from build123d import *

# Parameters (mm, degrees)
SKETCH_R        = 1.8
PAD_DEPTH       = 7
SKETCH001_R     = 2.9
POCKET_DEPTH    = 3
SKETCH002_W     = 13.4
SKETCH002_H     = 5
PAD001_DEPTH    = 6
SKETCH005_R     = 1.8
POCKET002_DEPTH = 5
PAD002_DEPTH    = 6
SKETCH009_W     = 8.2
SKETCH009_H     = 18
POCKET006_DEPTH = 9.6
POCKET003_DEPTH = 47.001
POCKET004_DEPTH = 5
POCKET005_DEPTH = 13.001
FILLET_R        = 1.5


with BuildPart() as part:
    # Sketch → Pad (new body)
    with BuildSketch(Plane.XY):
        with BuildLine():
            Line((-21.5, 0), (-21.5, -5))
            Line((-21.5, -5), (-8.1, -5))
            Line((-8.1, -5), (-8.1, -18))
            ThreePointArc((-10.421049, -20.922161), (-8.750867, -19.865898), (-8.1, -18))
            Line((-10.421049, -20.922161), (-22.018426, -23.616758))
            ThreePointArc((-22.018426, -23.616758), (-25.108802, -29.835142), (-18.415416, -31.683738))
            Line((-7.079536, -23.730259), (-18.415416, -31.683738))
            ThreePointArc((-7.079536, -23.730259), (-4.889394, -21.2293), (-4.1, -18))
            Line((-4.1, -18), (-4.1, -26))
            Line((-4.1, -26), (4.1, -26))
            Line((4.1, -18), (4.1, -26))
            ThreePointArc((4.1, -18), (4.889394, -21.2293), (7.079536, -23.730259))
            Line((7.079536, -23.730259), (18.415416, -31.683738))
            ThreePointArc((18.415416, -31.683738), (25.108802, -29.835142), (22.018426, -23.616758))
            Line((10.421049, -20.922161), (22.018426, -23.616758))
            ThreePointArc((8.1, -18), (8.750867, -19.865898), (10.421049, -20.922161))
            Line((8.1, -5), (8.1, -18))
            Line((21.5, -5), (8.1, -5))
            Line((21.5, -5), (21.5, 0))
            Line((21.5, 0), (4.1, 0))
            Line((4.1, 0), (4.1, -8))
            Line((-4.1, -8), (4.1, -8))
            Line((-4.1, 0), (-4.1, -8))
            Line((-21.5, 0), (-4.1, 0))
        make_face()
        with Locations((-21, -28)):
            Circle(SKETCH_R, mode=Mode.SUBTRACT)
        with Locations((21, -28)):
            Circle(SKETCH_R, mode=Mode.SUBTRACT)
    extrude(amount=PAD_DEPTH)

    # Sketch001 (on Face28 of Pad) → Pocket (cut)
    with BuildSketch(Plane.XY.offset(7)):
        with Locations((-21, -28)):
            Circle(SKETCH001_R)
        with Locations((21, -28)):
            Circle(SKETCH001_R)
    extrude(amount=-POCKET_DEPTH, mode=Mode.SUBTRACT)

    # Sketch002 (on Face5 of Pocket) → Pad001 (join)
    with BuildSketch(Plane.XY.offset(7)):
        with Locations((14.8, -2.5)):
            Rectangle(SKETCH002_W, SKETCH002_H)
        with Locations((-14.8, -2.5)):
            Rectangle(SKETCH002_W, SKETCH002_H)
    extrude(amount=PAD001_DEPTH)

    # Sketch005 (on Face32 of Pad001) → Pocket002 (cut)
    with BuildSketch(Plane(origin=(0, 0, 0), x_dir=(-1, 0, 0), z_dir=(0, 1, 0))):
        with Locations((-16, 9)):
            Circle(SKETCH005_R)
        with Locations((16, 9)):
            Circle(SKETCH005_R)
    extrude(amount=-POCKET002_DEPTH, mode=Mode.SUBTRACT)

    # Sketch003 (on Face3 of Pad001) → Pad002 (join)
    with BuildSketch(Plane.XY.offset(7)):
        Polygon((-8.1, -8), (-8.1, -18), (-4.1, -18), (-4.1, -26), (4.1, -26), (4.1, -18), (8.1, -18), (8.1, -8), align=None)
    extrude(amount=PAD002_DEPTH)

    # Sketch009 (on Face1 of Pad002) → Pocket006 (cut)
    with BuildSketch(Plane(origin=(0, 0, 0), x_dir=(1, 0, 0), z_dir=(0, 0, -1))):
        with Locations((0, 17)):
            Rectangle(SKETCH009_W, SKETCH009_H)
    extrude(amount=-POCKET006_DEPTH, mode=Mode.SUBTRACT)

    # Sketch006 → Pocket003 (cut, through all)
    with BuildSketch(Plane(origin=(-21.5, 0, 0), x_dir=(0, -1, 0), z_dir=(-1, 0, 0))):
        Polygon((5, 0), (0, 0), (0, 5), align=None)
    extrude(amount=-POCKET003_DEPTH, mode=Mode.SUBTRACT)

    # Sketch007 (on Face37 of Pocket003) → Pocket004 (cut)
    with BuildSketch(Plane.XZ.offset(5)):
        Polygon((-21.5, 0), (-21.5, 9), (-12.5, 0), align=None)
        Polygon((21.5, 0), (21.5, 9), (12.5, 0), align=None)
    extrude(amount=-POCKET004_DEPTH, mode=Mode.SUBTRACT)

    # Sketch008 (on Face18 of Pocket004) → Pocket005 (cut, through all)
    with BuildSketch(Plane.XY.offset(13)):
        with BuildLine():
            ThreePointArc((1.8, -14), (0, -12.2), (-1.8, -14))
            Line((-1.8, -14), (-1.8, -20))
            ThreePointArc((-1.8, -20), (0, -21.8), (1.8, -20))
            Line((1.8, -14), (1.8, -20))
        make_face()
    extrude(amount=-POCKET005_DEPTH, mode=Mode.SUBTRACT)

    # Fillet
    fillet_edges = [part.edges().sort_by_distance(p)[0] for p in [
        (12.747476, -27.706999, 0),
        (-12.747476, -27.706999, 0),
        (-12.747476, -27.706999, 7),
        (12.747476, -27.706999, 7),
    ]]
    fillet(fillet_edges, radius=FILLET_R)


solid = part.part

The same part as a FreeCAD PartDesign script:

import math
import FreeCAD as App
import Part
import Sketcher

V = App.Vector


def edges_at(feature, points):
    """Names of the edges that pass closest to the given points."""
    edges = feature.Shape.Edges
    near = lambda p: min(range(len(edges)), key=lambda i: edges[i].distToShape(Part.Vertex(*p))[0])
    return sorted({f"Edge{near(p) + 1}" for p in points})


def add_polygon(sketch, points):
    """Adds a closed chain of lines whose ends are joined by coincident constraints."""
    first, n = sketch.GeometryCount, len(points)
    for a, b in zip(points, points[1:] + points[:1]):
        sketch.addGeometry(Part.LineSegment(App.Vector(*a, 0), App.Vector(*b, 0)), False)
    for i in range(n):
        sketch.addConstraint(Sketcher.Constraint("Coincident", first + i, 2, first + (i + 1) % n, 1))

doc = App.newDocument("Part")
body = doc.addObject("PartDesign::Body", "Body")

sketch1 = body.newObject("Sketcher::SketchObject", "Sketch")
sketch1.AttachmentSupport = (doc.getObject("XY_Plane"), [""])
sketch1.MapMode = "FlatFace"
sketch1.addGeometry(Part.LineSegment(V(-21.5, 0, 0), V(-21.5, -5, 0)), False)
sketch1.addGeometry(Part.LineSegment(V(-21.5, -5, 0), V(-8.1, -5, 0)), False)
sketch1.addGeometry(Part.LineSegment(V(-8.1, -5, 0), V(-8.1, -18, 0)), False)
sketch1.addGeometry(Part.ArcOfCircle(Part.Circle(V(-11.1, -18, 0), V(0, 0, 1), 3), math.radians(-77), math.radians(0)), False)
sketch1.addGeometry(Part.LineSegment(V(-10.4, -20.9, 0), V(-22, -23.6, 0)), False)
sketch1.addGeometry(Part.ArcOfCircle(Part.Circle(V(-21, -28, 0), V(0, 0, 1), 4.5), math.radians(103), math.radians(305)), False)
sketch1.addGeometry(Part.LineSegment(V(-18.4, -31.7, 0), V(-7.1, -23.7, 0)), False)
sketch1.addGeometry(Part.ArcOfCircle(Part.Circle(V(-11.1, -18, 0), V(0, 0, 1), 7), math.radians(-55), math.radians(0)), False)
sketch1.addGeometry(Part.LineSegment(V(-4.1, -18, 0), V(-4.1, -26, 0)), False)
sketch1.addGeometry(Part.LineSegment(V(-4.1, -26, 0), V(4.1, -26, 0)), False)
sketch1.addGeometry(Part.LineSegment(V(4.1, -26, 0), V(4.1, -18, 0)), False)
sketch1.addGeometry(Part.ArcOfCircle(Part.Circle(V(11.1, -18, 0), V(0, 0, 1), 7), math.radians(180), math.radians(235)), False)
sketch1.addGeometry(Part.LineSegment(V(7.1, -23.7, 0), V(18.4, -31.7, 0)), False)
sketch1.addGeometry(Part.ArcOfCircle(Part.Circle(V(21, -28, 0), V(0, 0, 1), 4.5), math.radians(-125), math.radians(77)), False)
sketch1.addGeometry(Part.LineSegment(V(22, -23.6, 0), V(10.4, -20.9, 0)), False)
sketch1.addGeometry(Part.ArcOfCircle(Part.Circle(V(11.1, -18, 0), V(0, 0, 1), 3), math.radians(180), math.radians(257)), False)
sketch1.addGeometry(Part.LineSegment(V(8.1, -18, 0), V(8.1, -5, 0)), False)
sketch1.addGeometry(Part.LineSegment(V(8.1, -5, 0), V(21.5, -5, 0)), False)
sketch1.addGeometry(Part.LineSegment(V(21.5, -5, 0), V(21.5, 0, 0)), False)
sketch1.addGeometry(Part.LineSegment(V(21.5, 0, 0), V(4.1, 0, 0)), False)
sketch1.addGeometry(Part.LineSegment(V(4.1, 0, 0), V(4.1, -8, 0)), False)
sketch1.addGeometry(Part.LineSegment(V(4.1, -8, 0), V(-4.1, -8, 0)), False)
sketch1.addGeometry(Part.LineSegment(V(-4.1, -8, 0), V(-4.1, 0, 0)), False)
sketch1.addGeometry(Part.LineSegment(V(-4.1, 0, 0), V(-21.5, 0, 0)), False)
sketch1.addGeometry(Part.Circle(V(-21, -28, 0), V(0, 0, 1), 1.8), False)
sketch1.addGeometry(Part.Circle(V(21, -28, 0), V(0, 0, 1), 1.8), False)
sketch1.addConstraint(Sketcher.Constraint("Coincident", 0, 2, 1, 1))
sketch1.addConstraint(Sketcher.Constraint("Coincident", 1, 2, 2, 1))
sketch1.addConstraint(Sketcher.Constraint("Tangent", 2, 2, 3, 2))
sketch1.addConstraint(Sketcher.Constraint("Tangent", 3, 1, 4, 1))
sketch1.addConstraint(Sketcher.Constraint("Tangent", 4, 2, 5, 1))
sketch1.addConstraint(Sketcher.Constraint("Tangent", 5, 2, 6, 1))
sketch1.addConstraint(Sketcher.Constraint("Tangent", 6, 2, 7, 1))
sketch1.addConstraint(Sketcher.Constraint("Tangent", 7, 2, 8, 1))
sketch1.addConstraint(Sketcher.Constraint("Coincident", 8, 2, 9, 1))
sketch1.addConstraint(Sketcher.Constraint("Coincident", 9, 2, 10, 1))
sketch1.addConstraint(Sketcher.Constraint("Tangent", 10, 2, 11, 1))
sketch1.addConstraint(Sketcher.Constraint("Tangent", 11, 2, 12, 1))
sketch1.addConstraint(Sketcher.Constraint("Tangent", 12, 2, 13, 1))
sketch1.addConstraint(Sketcher.Constraint("Tangent", 13, 2, 14, 1))
sketch1.addConstraint(Sketcher.Constraint("Tangent", 14, 2, 15, 2))
sketch1.addConstraint(Sketcher.Constraint("Tangent", 15, 1, 16, 1))
sketch1.addConstraint(Sketcher.Constraint("Coincident", 16, 2, 17, 1))
sketch1.addConstraint(Sketcher.Constraint("Coincident", 17, 2, 18, 1))
sketch1.addConstraint(Sketcher.Constraint("Coincident", 18, 2, 19, 1))
sketch1.addConstraint(Sketcher.Constraint("Coincident", 19, 2, 20, 1))
sketch1.addConstraint(Sketcher.Constraint("Coincident", 20, 2, 21, 1))
sketch1.addConstraint(Sketcher.Constraint("Coincident", 21, 2, 22, 1))
sketch1.addConstraint(Sketcher.Constraint("Coincident", 22, 2, 23, 1))
sketch1.addConstraint(Sketcher.Constraint("Coincident", 23, 2, 0, 1))
sketch1.addConstraint(Sketcher.Constraint("Vertical", 0))
sketch1.addConstraint(Sketcher.Constraint("Horizontal", 1))
sketch1.addConstraint(Sketcher.Constraint("Vertical", 2))
sketch1.addConstraint(Sketcher.Constraint("Vertical", 8))
sketch1.addConstraint(Sketcher.Constraint("Horizontal", 9))
sketch1.addConstraint(Sketcher.Constraint("Vertical", 10))
sketch1.addConstraint(Sketcher.Constraint("Vertical", 16))
sketch1.addConstraint(Sketcher.Constraint("Horizontal", 17))
sketch1.addConstraint(Sketcher.Constraint("Vertical", 18))
sketch1.addConstraint(Sketcher.Constraint("Horizontal", 19))
sketch1.addConstraint(Sketcher.Constraint("Vertical", 20))
sketch1.addConstraint(Sketcher.Constraint("Horizontal", 21))
sketch1.addConstraint(Sketcher.Constraint("Vertical", 22))
sketch1.addConstraint(Sketcher.Constraint("Horizontal", 23))
sketch1.addConstraint(Sketcher.Constraint("Coincident", 7, 3, 3, 3))
sketch1.addConstraint(Sketcher.Constraint("Coincident", 15, 3, 11, 3))
sketch1.addConstraint(Sketcher.Constraint("Coincident", 24, 3, 5, 3))
sketch1.addConstraint(Sketcher.Constraint("Coincident", 25, 3, 13, 3))
sketch1.addConstraint(Sketcher.Constraint("Equal", 7, 11))
sketch1.addConstraint(Sketcher.Constraint("Equal", 5, 13))
sketch1.addConstraint(Sketcher.Constraint("Equal", 3, 15))
sketch1.addConstraint(Sketcher.Constraint("Equal", 24, 25))
sketch1.addConstraint(Sketcher.Constraint("Symmetric", 19, 2, 22, 2, -1, 1))
sketch1.addConstraint(Sketcher.Constraint("Symmetric", 3, 3, 11, 3, -2))
sketch1.addConstraint(Sketcher.Constraint("Symmetric", 5, 3, 13, 3, -2))
sketch1.addConstraint(Sketcher.Constraint("Symmetric", 0, 2, 17, 2, -2))
sketch1.addConstraint(Sketcher.Constraint("PointOnObject", 18, 2, -1))
sketch1.addConstraint(Sketcher.Constraint("Vertical", 10, 2, 19, 2))
sketch1.addConstraint(Sketcher.Constraint("Equal", 10, 20))
sketch1.addConstraint(Sketcher.Constraint("Radius", 3, 2.999999))
sketch1.addConstraint(Sketcher.Constraint("Diameter", 24, 3.6))
sketch1.addConstraint(Sketcher.Constraint("Radius", 5, 4.5))
sketch1.addConstraint(Sketcher.Constraint("DistanceY", 0, 2, 0, 1, 5.0))
sketch1.addConstraint(Sketcher.Constraint("DistanceY", 2, 2, 2, 1, 13.0))
sketch1.addConstraint(Sketcher.Constraint("DistanceY", 8, 2, 8, 1, 8.0))
sketch1.addConstraint(Sketcher.Constraint("DistanceX", 1, 1, 1, 2, 13.4))
sketch1.addConstraint(Sketcher.Constraint("DistanceX", 9, 1, 9, 2, 8.2))
sketch1.addConstraint(Sketcher.Constraint("DistanceX", 19, 2, 19, 1, 17.4))
sketch1.addConstraint(Sketcher.Constraint("DistanceX", 5, 3, -1, 1, 21.0))
sketch1.addConstraint(Sketcher.Constraint("DistanceY", 5, 3, -1, 1, 28.0))
pad1 = body.newObject("PartDesign::Pad", "Pad")
pad1.Profile = sketch1
pad1.Length = 7

sketch2 = body.newObject("Sketcher::SketchObject", "Sketch001")
sketch2.AttachmentSupport = (doc.getObject("XY_Plane"), [""])
sketch2.MapMode = "FlatFace"
sketch2.AttachmentOffset = App.Placement(V(0, 0, 7), App.Rotation())
sketch2.addGeometry(Part.Circle(V(-21, -28, 0), V(0, 0, 1), 2.9), False)
sketch2.addGeometry(Part.Circle(V(21, -28, 0), V(0, 0, 1), 2.9), False)
sketch2.addConstraint(Sketcher.Constraint("Equal", 0, 1))
sketch2.addConstraint(Sketcher.Constraint("Symmetric", 0, 3, 1, 3, -2))
sketch2.addConstraint(Sketcher.Constraint("Diameter", 0, 5.8))
sketch2.addConstraint(Sketcher.Constraint("DistanceX", 0, 3, -1, 1, 21.0))
sketch2.addConstraint(Sketcher.Constraint("DistanceY", 0, 3, -1, 1, 28.0))
pocket1 = body.newObject("PartDesign::Pocket", "Pocket")
pocket1.Profile = sketch2
pocket1.Length = 3

sketch3 = body.newObject("Sketcher::SketchObject", "Sketch002")
sketch3.AttachmentSupport = (doc.getObject("XY_Plane"), [""])
sketch3.MapMode = "FlatFace"
sketch3.AttachmentOffset = App.Placement(V(0, 0, 7), App.Rotation())
add_polygon(sketch3, [(8, 0), (8, -5), (22, -5), (22, 0)])
add_polygon(sketch3, [(-22, 0), (-22, -5), (-8, -5), (-8, 0)])
sketch3.addConstraint(Sketcher.Constraint("Vertical", 0))
sketch3.addConstraint(Sketcher.Constraint("Horizontal", 1))
sketch3.addConstraint(Sketcher.Constraint("Vertical", 2))
sketch3.addConstraint(Sketcher.Constraint("Horizontal", 3))
sketch3.addConstraint(Sketcher.Constraint("Vertical", 4))
sketch3.addConstraint(Sketcher.Constraint("Horizontal", 5))
sketch3.addConstraint(Sketcher.Constraint("Vertical", 6))
sketch3.addConstraint(Sketcher.Constraint("Horizontal", 7))
sketch3.addConstraint(Sketcher.Constraint("Symmetric", 3, 2, 6, 2, -1, 1))
sketch3.addConstraint(Sketcher.Constraint("Symmetric", 1, 2, 4, 2, -2))
sketch3.addConstraint(Sketcher.Constraint("PointOnObject", 2, 2, -1))
sketch3.addConstraint(Sketcher.Constraint("DistanceY", 0, 2, 0, 1, 5.0))
sketch3.addConstraint(Sketcher.Constraint("DistanceX", 1, 1, 1, 2, 13.4))
sketch3.addConstraint(Sketcher.Constraint("DistanceX", 4, 2, 1, 2, 43.0))
pad2 = body.newObject("PartDesign::Pad", "Pad001")
pad2.Profile = sketch3
pad2.Length = 6

sketch4 = body.newObject("Sketcher::SketchObject", "Sketch003")
sketch4.AttachmentSupport = (doc.getObject("XZ_Plane"), [""])
sketch4.MapMode = "FlatFace"
sketch4.addGeometry(Part.Circle(V(16, 9, 0), V(0, 0, 1), 1.8), False)
sketch4.addGeometry(Part.Circle(V(-16, 9, 0), V(0, 0, 1), 1.8), False)
sketch4.addConstraint(Sketcher.Constraint("Equal", 0, 1))
sketch4.addConstraint(Sketcher.Constraint("Symmetric", 0, 3, 1, 3, -2))
sketch4.addConstraint(Sketcher.Constraint("Diameter", 0, 3.6))
sketch4.addConstraint(Sketcher.Constraint("DistanceX", -1, 1, 0, 3, 16.0))
sketch4.addConstraint(Sketcher.Constraint("DistanceY", -1, 1, 0, 3, 9.0))
pocket2 = body.newObject("PartDesign::Pocket", "Pocket001")
pocket2.Profile = sketch4
pocket2.Length = 5
pocket2.Reversed = True

sketch5 = body.newObject("Sketcher::SketchObject", "Sketch004")
sketch5.AttachmentSupport = (doc.getObject("XY_Plane"), [""])
sketch5.MapMode = "FlatFace"
sketch5.AttachmentOffset = App.Placement(V(0, 0, 7), App.Rotation())
add_polygon(sketch5, [(-8.1, -8), (-8.1, -18), (-4.1, -18), (-4.1, -26), (4.1, -26), (4.1, -18), (8.1, -18), (8.1, -8)])
sketch5.addConstraint(Sketcher.Constraint("Vertical", 0))
sketch5.addConstraint(Sketcher.Constraint("Horizontal", 1))
sketch5.addConstraint(Sketcher.Constraint("Vertical", 2))
sketch5.addConstraint(Sketcher.Constraint("Horizontal", 3))
sketch5.addConstraint(Sketcher.Constraint("Vertical", 4))
sketch5.addConstraint(Sketcher.Constraint("Horizontal", 5))
sketch5.addConstraint(Sketcher.Constraint("Vertical", 6))
sketch5.addConstraint(Sketcher.Constraint("Horizontal", 7))
sketch5.addConstraint(Sketcher.Constraint("Symmetric", 1, 2, 4, 2, -2))
sketch5.addConstraint(Sketcher.Constraint("Equal", 1, 5))
sketch5.addConstraint(Sketcher.Constraint("DistanceX", 1, 1, 1, 2, 4.0))
sketch5.addConstraint(Sketcher.Constraint("DistanceY", 0, 2, 0, 1, 10.0))
sketch5.addConstraint(Sketcher.Constraint("DistanceY", 2, 2, 2, 1, 8.0))
sketch5.addConstraint(Sketcher.Constraint("DistanceX", 3, 1, 3, 2, 8.2))
sketch5.addConstraint(Sketcher.Constraint("DistanceY", 0, 2, -1, 1, 18.0))
pad3 = body.newObject("PartDesign::Pad", "Pad002")
pad3.Profile = sketch5
pad3.Length = 6

sketch6 = body.newObject("Sketcher::SketchObject", "Sketch005")
sketch6.AttachmentSupport = (doc.getObject("XY_Plane"), [""])
sketch6.MapMode = "FlatFace"
add_polygon(sketch6, [(-4, -26), (-4, -8), (4, -8), (4, -26)])
sketch6.addConstraint(Sketcher.Constraint("Vertical", 0))
sketch6.addConstraint(Sketcher.Constraint("Horizontal", 1))
sketch6.addConstraint(Sketcher.Constraint("Vertical", 2))
sketch6.addConstraint(Sketcher.Constraint("Horizontal", 3))
sketch6.addConstraint(Sketcher.Constraint("DistanceY", 0, 1, 0, 2, 18.0))
sketch6.addConstraint(Sketcher.Constraint("DistanceX", 1, 1, 1, 2, 8.2))
sketch6.addConstraint(Sketcher.Constraint("DistanceY", 0, 2, -1, 1, 8.0))
sketch6.addConstraint(Sketcher.Constraint("DistanceX", 0, 2, -1, 1, 4.1))
pocket3 = body.newObject("PartDesign::Pocket", "Pocket002")
pocket3.Profile = sketch6
pocket3.Length = 9.6
pocket3.Reversed = True

sketch7 = body.newObject("Sketcher::SketchObject", "Sketch006")
sketch7.AttachmentSupport = (doc.getObject("YZ_Plane"), [""])
sketch7.MapMode = "FlatFace"
sketch7.AttachmentOffset = App.Placement(V(0, 0, -21.5), App.Rotation())
add_polygon(sketch7, [(0, 0), (-5, 0), (0, 5)])
sketch7.addConstraint(Sketcher.Constraint("Horizontal", 0))
sketch7.addConstraint(Sketcher.Constraint("Vertical", 2))
sketch7.addConstraint(Sketcher.Constraint("Coincident", 2, 2, -1, 1))
sketch7.addConstraint(Sketcher.Constraint("Equal", 0, 2))
sketch7.addConstraint(Sketcher.Constraint("DistanceX", 0, 2, 0, 1, 5.0))
pocket4 = body.newObject("PartDesign::Pocket", "Pocket003")
pocket4.Profile = sketch7
pocket4.Type = "ThroughAll"
pocket4.Reversed = True

sketch8 = body.newObject("Sketcher::SketchObject", "Sketch007")
sketch8.AttachmentSupport = (doc.getObject("XZ_Plane"), [""])
sketch8.MapMode = "FlatFace"
sketch8.AttachmentOffset = App.Placement(V(0, 0, 5), App.Rotation())
add_polygon(sketch8, [(-22, 9), (-22, 0), (-12, 0)])
add_polygon(sketch8, [(22, 0), (22, 9), (12, 0)])
sketch8.addConstraint(Sketcher.Constraint("Vertical", 0))
sketch8.addConstraint(Sketcher.Constraint("Horizontal", 1))
sketch8.addConstraint(Sketcher.Constraint("Vertical", 3))
sketch8.addConstraint(Sketcher.Constraint("Horizontal", 5))
sketch8.addConstraint(Sketcher.Constraint("Symmetric", 1, 2, 4, 2, -1, 1))
sketch8.addConstraint(Sketcher.Constraint("Symmetric", 2, 2, 3, 2, -2))
sketch8.addConstraint(Sketcher.Constraint("PointOnObject", 0, 2, -1))
sketch8.addConstraint(Sketcher.Constraint("Perpendicular", 2, 4))
sketch8.addConstraint(Sketcher.Constraint("DistanceX", 1, 1, 1, 2, 9.0))
sketch8.addConstraint(Sketcher.Constraint("DistanceX", 1, 2, 3, 2, 34.0))
pocket5 = body.newObject("PartDesign::Pocket", "Pocket004")
pocket5.Profile = sketch8
pocket5.Length = 5

sketch9 = body.newObject("Sketcher::SketchObject", "Sketch008")
sketch9.AttachmentSupport = (doc.getObject("XY_Plane"), [""])
sketch9.MapMode = "FlatFace"
sketch9.AttachmentOffset = App.Placement(V(0, 0, 13), App.Rotation())
sketch9.addGeometry(Part.ArcOfCircle(Part.Circle(V(0, -14, 0), V(0, 0, 1), 1.8), math.radians(0), math.radians(180)), False)
sketch9.addGeometry(Part.LineSegment(V(-1.8, -14, 0), V(-1.8, -20, 0)), False)
sketch9.addGeometry(Part.ArcOfCircle(Part.Circle(V(0, -20, 0), V(0, 0, 1), 1.8), math.radians(180), math.radians(360)), False)
sketch9.addGeometry(Part.LineSegment(V(1.8, -20, 0), V(1.8, -14, 0)), False)
sketch9.addConstraint(Sketcher.Constraint("Tangent", 0, 2, 1, 1))
sketch9.addConstraint(Sketcher.Constraint("Tangent", 1, 2, 2, 1))
sketch9.addConstraint(Sketcher.Constraint("Tangent", 2, 2, 3, 1))
sketch9.addConstraint(Sketcher.Constraint("Tangent", 3, 2, 0, 1))
sketch9.addConstraint(Sketcher.Constraint("Vertical", 1))
sketch9.addConstraint(Sketcher.Constraint("Vertical", 3))
sketch9.addConstraint(Sketcher.Constraint("PointOnObject", 0, 3, -2))
sketch9.addConstraint(Sketcher.Constraint("Radius", 0, 1.8))
sketch9.addConstraint(Sketcher.Constraint("DistanceY", 1, 2, 1, 1, 6.0))
sketch9.addConstraint(Sketcher.Constraint("DistanceY", 0, 3, -1, 1, 14.0))
pocket6 = body.newObject("PartDesign::Pocket", "Pocket005")
pocket6.Profile = sketch9
pocket6.Type = "ThroughAll"
doc.recompute()

fillet = body.newObject("PartDesign::Fillet", "Fillet")
fillet.Base = (pocket6, edges_at(pocket6, [
    (12.747, -27.707, 0),
    (-12.747, -27.707, 0),
    (-12.747, -27.707, 7),
    (12.747, -27.707, 7),
]))
fillet.Radius = 1.5

doc.recompute()
